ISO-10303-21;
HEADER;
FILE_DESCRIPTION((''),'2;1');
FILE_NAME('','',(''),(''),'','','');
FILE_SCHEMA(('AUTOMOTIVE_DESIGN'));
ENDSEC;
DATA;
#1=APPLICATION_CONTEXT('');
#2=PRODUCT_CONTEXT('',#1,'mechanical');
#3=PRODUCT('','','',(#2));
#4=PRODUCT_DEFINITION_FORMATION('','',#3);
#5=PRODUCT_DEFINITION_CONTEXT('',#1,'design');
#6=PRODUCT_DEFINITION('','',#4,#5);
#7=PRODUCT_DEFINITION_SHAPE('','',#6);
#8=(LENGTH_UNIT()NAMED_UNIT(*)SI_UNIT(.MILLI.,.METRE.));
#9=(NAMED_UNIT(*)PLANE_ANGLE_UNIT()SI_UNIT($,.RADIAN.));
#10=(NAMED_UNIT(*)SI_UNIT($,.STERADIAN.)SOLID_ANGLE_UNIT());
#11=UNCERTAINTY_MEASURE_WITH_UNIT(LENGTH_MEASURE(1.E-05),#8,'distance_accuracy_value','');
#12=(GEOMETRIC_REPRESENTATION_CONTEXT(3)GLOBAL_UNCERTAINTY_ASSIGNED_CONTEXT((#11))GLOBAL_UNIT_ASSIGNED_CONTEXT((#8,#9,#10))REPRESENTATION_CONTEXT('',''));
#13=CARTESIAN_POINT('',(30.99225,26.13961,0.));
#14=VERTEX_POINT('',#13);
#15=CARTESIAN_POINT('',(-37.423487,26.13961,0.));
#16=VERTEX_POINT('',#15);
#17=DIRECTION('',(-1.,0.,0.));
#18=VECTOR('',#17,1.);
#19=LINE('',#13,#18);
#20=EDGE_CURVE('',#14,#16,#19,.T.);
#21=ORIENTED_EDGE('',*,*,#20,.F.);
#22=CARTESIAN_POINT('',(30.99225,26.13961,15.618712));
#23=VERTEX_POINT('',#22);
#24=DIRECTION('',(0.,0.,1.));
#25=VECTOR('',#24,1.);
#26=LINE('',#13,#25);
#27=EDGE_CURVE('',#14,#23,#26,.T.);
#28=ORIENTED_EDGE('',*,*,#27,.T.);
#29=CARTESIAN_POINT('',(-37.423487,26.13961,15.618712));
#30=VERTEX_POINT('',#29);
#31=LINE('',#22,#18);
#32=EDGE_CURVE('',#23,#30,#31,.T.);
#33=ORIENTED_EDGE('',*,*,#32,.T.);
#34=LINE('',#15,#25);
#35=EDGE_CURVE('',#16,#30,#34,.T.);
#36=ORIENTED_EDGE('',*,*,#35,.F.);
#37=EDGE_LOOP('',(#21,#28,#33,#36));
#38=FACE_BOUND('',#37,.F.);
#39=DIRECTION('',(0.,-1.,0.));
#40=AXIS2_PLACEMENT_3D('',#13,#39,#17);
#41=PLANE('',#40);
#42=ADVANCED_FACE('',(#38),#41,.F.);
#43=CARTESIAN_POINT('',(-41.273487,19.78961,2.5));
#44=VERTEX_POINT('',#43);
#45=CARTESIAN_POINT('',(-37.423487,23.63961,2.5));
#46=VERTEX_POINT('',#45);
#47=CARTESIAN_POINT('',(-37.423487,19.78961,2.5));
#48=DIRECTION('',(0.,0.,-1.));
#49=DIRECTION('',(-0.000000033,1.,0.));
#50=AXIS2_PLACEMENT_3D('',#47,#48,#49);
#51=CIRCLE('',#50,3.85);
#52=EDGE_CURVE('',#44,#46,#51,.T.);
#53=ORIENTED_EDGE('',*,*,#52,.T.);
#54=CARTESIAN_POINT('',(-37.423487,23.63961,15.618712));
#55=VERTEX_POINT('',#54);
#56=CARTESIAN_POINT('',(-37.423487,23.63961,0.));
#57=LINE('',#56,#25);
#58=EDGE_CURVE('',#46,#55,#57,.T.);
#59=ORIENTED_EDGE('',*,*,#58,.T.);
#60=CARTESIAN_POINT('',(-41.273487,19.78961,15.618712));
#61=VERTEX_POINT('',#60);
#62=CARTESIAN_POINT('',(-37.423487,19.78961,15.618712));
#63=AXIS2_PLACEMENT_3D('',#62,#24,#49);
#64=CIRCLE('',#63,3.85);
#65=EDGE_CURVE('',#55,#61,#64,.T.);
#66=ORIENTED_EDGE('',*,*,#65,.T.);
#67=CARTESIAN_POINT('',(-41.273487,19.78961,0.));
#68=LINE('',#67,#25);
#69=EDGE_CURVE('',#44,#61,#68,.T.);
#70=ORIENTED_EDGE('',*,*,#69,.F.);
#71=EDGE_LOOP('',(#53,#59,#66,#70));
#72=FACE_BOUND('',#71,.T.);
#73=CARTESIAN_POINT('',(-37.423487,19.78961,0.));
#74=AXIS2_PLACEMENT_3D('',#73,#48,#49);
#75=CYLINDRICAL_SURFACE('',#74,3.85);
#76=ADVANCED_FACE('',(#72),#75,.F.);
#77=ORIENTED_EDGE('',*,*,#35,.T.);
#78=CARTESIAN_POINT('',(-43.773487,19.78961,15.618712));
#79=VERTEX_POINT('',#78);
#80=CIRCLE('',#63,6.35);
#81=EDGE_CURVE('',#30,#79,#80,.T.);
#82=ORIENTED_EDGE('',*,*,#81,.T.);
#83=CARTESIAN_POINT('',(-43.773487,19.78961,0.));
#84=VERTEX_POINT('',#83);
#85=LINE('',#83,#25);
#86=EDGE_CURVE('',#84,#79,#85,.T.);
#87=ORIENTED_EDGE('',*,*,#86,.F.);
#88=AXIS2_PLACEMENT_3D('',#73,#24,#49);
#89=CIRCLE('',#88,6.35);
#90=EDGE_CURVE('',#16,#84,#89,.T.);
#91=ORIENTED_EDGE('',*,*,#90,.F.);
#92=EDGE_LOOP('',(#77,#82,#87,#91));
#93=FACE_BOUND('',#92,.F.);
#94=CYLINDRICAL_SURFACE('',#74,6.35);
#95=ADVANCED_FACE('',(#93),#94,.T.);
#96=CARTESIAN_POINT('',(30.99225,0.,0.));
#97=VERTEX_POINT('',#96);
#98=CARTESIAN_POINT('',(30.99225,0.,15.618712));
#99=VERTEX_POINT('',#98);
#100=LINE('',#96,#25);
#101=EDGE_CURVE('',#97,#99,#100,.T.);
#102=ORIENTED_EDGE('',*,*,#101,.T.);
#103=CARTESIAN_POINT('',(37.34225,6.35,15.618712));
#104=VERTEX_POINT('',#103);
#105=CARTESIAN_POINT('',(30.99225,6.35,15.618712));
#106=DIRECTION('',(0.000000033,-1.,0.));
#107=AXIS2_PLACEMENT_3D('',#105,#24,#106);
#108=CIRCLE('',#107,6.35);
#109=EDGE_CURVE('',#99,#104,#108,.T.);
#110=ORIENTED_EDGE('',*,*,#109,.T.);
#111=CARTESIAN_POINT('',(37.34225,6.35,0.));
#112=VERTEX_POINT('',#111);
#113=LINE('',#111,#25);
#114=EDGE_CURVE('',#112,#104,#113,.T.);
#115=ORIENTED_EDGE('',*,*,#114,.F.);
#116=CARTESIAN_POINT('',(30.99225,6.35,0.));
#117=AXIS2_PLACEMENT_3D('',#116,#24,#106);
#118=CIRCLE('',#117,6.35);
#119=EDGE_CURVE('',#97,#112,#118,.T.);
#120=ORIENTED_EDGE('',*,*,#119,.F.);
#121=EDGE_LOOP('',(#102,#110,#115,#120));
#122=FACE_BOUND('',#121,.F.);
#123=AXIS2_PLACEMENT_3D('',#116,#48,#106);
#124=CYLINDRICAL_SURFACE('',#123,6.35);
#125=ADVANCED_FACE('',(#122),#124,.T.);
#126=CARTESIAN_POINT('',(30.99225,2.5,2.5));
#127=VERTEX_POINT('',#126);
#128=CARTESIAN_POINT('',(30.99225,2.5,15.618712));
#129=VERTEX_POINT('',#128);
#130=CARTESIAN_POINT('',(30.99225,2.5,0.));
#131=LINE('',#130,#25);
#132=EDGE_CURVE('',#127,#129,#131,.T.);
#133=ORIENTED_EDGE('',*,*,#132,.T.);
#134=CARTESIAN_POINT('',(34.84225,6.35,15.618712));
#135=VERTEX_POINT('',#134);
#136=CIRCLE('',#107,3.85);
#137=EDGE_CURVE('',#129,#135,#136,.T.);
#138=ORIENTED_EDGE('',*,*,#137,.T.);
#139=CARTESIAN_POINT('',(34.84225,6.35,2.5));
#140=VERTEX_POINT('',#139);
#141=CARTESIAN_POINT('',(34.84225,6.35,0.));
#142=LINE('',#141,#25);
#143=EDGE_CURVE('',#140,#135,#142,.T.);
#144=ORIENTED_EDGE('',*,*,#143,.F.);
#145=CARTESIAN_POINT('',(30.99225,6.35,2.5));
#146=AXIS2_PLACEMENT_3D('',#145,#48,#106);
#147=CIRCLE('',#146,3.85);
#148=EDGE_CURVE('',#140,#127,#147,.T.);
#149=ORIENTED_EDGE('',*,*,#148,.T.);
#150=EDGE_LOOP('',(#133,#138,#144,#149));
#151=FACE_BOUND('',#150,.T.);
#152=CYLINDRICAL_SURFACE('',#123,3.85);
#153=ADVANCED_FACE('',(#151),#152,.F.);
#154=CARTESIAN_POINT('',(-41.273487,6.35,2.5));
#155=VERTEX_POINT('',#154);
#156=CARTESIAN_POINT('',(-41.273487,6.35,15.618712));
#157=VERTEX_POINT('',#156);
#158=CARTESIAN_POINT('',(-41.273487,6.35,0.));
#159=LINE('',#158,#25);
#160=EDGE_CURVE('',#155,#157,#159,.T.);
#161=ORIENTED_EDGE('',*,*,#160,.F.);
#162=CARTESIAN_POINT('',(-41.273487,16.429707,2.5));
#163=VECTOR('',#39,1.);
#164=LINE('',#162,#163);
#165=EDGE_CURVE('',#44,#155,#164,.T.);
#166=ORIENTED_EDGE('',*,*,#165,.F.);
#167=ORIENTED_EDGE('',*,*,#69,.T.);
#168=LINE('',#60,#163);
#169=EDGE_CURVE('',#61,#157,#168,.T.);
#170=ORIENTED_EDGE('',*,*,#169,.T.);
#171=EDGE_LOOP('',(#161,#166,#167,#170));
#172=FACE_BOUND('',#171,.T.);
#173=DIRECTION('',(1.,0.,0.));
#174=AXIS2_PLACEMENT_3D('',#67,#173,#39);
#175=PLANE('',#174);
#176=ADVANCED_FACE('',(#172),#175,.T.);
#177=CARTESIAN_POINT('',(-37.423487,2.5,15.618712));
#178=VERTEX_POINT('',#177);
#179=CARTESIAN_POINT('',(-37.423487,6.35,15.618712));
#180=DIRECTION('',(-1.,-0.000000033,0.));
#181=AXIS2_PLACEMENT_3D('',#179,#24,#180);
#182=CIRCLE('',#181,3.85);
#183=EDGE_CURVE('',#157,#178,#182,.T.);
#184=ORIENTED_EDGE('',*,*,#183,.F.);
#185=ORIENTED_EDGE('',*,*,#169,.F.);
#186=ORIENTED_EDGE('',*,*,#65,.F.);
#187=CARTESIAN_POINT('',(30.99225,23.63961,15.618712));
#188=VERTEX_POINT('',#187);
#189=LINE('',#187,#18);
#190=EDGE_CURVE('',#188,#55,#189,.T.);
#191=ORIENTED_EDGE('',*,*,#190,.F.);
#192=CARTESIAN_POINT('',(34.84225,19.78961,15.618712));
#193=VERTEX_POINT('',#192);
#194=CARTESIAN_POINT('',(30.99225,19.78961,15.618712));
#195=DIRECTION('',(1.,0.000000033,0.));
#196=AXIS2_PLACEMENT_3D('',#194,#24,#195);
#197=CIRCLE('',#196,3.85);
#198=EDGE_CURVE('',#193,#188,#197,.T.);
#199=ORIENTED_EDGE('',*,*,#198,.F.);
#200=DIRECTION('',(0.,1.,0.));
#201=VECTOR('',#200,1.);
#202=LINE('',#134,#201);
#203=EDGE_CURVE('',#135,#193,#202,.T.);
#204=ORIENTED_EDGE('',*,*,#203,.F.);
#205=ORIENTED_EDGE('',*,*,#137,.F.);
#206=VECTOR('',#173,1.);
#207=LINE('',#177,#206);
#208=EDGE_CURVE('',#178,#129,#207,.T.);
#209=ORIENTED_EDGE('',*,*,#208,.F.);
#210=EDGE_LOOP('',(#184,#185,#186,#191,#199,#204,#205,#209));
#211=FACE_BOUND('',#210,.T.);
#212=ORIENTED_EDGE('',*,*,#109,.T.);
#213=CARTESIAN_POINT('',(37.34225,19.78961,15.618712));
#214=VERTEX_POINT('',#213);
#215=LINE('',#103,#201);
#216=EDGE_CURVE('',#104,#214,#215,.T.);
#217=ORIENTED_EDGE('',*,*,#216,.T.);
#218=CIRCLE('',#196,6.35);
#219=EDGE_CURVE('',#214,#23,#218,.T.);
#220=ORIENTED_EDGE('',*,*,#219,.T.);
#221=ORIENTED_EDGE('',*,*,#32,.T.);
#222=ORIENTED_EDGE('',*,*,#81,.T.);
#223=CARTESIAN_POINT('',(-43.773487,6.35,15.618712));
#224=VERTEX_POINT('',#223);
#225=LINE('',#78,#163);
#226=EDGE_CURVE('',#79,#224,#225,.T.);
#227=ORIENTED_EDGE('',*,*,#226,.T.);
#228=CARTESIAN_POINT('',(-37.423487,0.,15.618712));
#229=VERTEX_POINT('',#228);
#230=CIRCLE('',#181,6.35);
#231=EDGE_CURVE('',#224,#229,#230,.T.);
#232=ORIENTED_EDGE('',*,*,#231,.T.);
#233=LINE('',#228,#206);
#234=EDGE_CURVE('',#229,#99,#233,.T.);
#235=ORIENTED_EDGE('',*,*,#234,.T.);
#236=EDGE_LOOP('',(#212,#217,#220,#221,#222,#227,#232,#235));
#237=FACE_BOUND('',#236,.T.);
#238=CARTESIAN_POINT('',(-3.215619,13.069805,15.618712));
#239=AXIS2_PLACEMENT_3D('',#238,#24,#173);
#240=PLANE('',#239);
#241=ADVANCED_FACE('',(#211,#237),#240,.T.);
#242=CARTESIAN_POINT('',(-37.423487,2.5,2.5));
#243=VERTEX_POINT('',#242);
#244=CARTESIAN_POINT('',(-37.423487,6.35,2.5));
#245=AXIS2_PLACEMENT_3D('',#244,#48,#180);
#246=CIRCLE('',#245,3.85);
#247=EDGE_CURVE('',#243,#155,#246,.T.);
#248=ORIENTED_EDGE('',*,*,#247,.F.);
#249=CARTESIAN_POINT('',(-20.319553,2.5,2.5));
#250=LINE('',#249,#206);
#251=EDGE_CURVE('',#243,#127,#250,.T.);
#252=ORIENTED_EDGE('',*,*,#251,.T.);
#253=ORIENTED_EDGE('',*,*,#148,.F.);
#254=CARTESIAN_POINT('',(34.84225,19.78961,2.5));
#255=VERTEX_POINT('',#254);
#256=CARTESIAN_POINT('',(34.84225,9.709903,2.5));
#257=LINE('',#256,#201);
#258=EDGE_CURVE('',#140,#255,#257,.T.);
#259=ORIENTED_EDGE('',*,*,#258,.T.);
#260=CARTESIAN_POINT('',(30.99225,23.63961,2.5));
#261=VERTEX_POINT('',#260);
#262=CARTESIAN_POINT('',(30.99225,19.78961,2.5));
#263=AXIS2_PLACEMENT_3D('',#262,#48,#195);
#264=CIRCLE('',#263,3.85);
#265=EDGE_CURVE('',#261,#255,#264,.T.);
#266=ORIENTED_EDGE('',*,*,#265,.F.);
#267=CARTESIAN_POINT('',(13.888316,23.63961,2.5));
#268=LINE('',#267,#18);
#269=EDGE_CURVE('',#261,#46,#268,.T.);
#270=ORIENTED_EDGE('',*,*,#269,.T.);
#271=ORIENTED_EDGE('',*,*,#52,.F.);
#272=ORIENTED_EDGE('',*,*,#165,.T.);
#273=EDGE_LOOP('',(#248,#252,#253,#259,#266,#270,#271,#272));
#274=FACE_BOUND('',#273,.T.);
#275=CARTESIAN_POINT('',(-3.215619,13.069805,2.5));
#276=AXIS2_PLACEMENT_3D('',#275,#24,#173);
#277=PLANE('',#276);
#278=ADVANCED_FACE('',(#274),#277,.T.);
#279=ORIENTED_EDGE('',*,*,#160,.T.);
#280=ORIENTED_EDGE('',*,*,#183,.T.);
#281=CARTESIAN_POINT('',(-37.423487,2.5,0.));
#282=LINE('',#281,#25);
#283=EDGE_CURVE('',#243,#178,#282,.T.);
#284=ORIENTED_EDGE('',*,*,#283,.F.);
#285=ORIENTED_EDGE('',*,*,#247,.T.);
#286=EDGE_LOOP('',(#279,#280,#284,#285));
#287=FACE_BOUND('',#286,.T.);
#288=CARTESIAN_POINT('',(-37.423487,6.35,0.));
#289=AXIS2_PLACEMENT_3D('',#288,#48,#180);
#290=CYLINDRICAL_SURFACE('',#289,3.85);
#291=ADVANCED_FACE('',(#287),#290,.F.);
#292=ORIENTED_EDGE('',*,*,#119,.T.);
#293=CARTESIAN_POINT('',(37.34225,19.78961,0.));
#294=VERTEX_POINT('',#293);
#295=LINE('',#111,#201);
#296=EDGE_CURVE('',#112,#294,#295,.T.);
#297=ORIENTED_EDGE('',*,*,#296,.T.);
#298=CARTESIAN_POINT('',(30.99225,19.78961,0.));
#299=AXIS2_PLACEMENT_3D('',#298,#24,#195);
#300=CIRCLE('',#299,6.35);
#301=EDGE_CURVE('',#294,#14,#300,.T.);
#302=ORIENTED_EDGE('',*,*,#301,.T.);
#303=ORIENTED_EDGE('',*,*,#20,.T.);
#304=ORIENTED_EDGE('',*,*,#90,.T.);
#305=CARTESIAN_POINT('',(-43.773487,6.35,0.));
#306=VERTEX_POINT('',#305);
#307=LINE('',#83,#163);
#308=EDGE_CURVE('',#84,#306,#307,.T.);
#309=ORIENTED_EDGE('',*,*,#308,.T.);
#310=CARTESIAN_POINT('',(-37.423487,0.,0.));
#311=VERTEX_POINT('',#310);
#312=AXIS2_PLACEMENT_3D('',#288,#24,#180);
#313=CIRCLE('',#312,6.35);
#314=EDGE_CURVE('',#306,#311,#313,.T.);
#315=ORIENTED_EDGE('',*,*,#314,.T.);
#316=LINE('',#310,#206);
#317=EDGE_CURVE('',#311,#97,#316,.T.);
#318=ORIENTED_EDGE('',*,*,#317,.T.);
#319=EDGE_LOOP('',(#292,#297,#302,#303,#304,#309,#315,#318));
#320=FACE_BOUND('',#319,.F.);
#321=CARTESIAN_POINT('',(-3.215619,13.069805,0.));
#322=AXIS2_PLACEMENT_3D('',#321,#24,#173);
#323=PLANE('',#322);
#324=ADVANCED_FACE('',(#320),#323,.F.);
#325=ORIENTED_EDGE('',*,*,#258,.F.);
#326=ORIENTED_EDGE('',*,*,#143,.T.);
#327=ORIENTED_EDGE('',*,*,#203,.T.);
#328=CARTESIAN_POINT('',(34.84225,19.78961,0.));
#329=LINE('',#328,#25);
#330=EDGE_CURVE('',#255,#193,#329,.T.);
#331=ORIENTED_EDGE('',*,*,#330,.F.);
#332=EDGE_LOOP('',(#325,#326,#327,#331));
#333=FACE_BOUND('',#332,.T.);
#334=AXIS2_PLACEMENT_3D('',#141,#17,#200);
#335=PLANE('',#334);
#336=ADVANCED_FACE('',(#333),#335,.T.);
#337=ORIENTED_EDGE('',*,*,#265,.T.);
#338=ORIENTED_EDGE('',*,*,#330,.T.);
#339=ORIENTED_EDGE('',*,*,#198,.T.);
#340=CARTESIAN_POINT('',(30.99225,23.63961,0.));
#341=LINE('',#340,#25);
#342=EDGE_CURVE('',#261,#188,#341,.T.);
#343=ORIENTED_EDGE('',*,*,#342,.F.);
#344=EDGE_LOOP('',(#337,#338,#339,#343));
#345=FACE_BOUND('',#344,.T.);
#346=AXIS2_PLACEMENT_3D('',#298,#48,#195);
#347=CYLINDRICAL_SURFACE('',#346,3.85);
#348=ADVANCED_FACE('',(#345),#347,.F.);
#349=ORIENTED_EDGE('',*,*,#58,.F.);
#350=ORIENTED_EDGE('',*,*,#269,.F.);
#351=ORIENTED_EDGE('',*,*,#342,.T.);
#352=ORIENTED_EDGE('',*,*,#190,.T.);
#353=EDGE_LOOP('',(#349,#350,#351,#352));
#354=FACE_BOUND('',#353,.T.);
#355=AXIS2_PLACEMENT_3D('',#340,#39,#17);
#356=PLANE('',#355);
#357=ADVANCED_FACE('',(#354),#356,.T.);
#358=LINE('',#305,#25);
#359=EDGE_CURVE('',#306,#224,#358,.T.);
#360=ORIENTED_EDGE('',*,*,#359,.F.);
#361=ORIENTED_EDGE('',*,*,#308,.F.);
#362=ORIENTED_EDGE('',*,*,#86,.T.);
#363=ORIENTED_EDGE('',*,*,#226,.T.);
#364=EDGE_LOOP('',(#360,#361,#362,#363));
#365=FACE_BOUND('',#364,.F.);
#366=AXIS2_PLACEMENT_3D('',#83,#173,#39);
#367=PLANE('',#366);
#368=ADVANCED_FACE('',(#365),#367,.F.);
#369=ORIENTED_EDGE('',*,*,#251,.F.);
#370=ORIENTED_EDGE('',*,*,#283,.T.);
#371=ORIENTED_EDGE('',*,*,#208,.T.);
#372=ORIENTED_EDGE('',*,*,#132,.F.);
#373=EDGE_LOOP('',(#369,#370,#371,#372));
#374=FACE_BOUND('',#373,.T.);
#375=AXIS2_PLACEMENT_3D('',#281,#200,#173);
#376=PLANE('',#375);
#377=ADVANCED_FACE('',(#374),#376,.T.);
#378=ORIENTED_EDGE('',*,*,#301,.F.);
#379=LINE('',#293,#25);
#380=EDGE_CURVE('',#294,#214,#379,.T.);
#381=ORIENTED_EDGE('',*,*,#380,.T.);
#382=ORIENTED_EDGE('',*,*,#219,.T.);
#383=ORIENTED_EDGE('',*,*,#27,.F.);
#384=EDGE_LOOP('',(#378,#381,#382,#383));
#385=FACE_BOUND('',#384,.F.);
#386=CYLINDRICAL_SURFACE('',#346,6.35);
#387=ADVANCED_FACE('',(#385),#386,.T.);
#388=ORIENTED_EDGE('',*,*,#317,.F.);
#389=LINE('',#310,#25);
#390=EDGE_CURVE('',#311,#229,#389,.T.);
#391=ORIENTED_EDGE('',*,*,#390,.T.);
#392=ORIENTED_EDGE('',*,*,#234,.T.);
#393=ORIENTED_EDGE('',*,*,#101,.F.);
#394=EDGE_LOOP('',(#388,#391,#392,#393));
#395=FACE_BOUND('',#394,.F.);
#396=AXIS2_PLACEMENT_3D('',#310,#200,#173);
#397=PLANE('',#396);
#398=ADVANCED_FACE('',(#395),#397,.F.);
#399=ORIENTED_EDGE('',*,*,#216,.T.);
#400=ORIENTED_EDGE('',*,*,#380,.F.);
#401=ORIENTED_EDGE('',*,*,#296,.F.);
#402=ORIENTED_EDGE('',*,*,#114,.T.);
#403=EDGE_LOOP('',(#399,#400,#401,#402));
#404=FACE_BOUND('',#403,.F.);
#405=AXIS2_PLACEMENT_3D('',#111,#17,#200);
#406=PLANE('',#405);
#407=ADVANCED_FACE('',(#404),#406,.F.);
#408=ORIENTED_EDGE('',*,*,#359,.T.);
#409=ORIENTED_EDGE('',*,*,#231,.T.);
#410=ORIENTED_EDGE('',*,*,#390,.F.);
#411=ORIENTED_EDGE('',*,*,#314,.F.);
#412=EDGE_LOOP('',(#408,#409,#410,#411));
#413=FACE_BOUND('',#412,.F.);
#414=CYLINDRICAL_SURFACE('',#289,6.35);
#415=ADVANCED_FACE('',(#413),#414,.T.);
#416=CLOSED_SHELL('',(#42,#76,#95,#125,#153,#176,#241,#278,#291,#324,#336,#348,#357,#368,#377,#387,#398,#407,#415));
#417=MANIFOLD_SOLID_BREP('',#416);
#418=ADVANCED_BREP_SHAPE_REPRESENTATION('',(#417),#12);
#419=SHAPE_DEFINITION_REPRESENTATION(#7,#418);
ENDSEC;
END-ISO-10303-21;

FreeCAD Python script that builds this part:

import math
import FreeCAD as App
import Part
import Sketcher

V = App.Vector
Q = App.Units.Quantity


def faces_at(feature, points):
    """Names of the faces that lie closest to the given points."""
    faces = feature.Shape.Faces
    near = lambda p: min(range(len(faces)), key=lambda i: faces[i].distToShape(Part.Vertex(*p))[0])
    return sorted({f"Face{near(p) + 1}" for p in points})

doc = App.newDocument("Part")
body = doc.addObject("PartDesign::Body", "Body")

sketch1 = body.newObject("Sketcher::SketchObject", "Sketch")
sketch1.AttachmentSupport = (doc.getObject("XY_Plane"), [""])
sketch1.MapMode = "FlatFace"
sketch1.addGeometry(Part.ArcOfCircle(Part.Circle(V(31, 20, 0), V(0, 0, 1), 6), math.radians(0), math.radians(90)), False)
sketch1.addGeometry(Part.LineSegment(V(31, 26, 0), V(-37, 26, 0)), False)
sketch1.addGeometry(Part.ArcOfCircle(Part.Circle(V(-37, 20, 0), V(0, 0, 1), 6), math.radians(90), math.radians(180)), False)
sketch1.addGeometry(Part.LineSegment(V(-44, 20, 0), V(-44, 6, 0)), False)
sketch1.addGeometry(Part.ArcOfCircle(Part.Circle(V(-37, 6, 0), V(0, 0, 1), 6), math.radians(-180), math.radians(-90)), False)
sketch1.addGeometry(Part.LineSegment(V(-37, 0, 0), V(31, 0, 0)), False)
sketch1.addGeometry(Part.ArcOfCircle(Part.Circle(V(31, 6, 0), V(0, 0, 1), 6), math.radians(-90), math.radians(0)), False)
sketch1.addGeometry(Part.LineSegment(V(37, 6, 0), V(37, 20, 0)), False)
sketch1.addConstraint(Sketcher.Constraint("Tangent", 0, 2, 1, 1))
sketch1.addConstraint(Sketcher.Constraint("Tangent", 1, 2, 2, 1))
sketch1.addConstraint(Sketcher.Constraint("Tangent", 2, 2, 3, 1))
sketch1.addConstraint(Sketcher.Constraint("Tangent", 3, 2, 4, 1))
sketch1.addConstraint(Sketcher.Constraint("Tangent", 4, 2, 5, 1))
sketch1.addConstraint(Sketcher.Constraint("Tangent", 5, 2, 6, 1))
sketch1.addConstraint(Sketcher.Constraint("Tangent", 6, 2, 7, 1))
sketch1.addConstraint(Sketcher.Constraint("Tangent", 7, 2, 0, 1))
sketch1.addConstraint(Sketcher.Constraint("Horizontal", 1))
sketch1.addConstraint(Sketcher.Constraint("Vertical", 3))
sketch1.addConstraint(Sketcher.Constraint("Horizontal", 5))
sketch1.addConstraint(Sketcher.Constraint("Vertical", 7))
sketch1.addConstraint(Sketcher.Constraint("Equal", 0, 2))
sketch1.addConstraint(Sketcher.Constraint("Equal", 2, 4))
sketch1.addConstraint(Sketcher.Constraint("Equal", 4, 6))
sketch1.addConstraint(Sketcher.Constraint("PointOnObject", 4, 2, -1))
sketch1.addConstraint(Sketcher.Constraint("Radius", 0, Q("6.35 mm")))
sketch1.addConstraint(Sketcher.Constraint("DistanceY", 3, 2, 3, 1, Q("13.43961 mm")))
sketch1.addConstraint(Sketcher.Constraint("DistanceX", 1, 2, 1, 1, Q("68.415737 mm")))
sketch1.addConstraint(Sketcher.Constraint("DistanceX", -1, 1, 0, 3, Q("30.99225 mm")))
pad1 = body.newObject("PartDesign::Pad", "Pad")
pad1.Profile = sketch1
pad1.Length = 15.618712
doc.recompute()

thickness = body.newObject("PartDesign::Thickness", "Thickness")
thickness.Base = (pad1, faces_at(pad1, [(-3.216, 13.07, 15.619)]))
thickness.Value = 2.5
thickness.Reversed = True
thickness.Join = "Arc"

doc.recompute()
